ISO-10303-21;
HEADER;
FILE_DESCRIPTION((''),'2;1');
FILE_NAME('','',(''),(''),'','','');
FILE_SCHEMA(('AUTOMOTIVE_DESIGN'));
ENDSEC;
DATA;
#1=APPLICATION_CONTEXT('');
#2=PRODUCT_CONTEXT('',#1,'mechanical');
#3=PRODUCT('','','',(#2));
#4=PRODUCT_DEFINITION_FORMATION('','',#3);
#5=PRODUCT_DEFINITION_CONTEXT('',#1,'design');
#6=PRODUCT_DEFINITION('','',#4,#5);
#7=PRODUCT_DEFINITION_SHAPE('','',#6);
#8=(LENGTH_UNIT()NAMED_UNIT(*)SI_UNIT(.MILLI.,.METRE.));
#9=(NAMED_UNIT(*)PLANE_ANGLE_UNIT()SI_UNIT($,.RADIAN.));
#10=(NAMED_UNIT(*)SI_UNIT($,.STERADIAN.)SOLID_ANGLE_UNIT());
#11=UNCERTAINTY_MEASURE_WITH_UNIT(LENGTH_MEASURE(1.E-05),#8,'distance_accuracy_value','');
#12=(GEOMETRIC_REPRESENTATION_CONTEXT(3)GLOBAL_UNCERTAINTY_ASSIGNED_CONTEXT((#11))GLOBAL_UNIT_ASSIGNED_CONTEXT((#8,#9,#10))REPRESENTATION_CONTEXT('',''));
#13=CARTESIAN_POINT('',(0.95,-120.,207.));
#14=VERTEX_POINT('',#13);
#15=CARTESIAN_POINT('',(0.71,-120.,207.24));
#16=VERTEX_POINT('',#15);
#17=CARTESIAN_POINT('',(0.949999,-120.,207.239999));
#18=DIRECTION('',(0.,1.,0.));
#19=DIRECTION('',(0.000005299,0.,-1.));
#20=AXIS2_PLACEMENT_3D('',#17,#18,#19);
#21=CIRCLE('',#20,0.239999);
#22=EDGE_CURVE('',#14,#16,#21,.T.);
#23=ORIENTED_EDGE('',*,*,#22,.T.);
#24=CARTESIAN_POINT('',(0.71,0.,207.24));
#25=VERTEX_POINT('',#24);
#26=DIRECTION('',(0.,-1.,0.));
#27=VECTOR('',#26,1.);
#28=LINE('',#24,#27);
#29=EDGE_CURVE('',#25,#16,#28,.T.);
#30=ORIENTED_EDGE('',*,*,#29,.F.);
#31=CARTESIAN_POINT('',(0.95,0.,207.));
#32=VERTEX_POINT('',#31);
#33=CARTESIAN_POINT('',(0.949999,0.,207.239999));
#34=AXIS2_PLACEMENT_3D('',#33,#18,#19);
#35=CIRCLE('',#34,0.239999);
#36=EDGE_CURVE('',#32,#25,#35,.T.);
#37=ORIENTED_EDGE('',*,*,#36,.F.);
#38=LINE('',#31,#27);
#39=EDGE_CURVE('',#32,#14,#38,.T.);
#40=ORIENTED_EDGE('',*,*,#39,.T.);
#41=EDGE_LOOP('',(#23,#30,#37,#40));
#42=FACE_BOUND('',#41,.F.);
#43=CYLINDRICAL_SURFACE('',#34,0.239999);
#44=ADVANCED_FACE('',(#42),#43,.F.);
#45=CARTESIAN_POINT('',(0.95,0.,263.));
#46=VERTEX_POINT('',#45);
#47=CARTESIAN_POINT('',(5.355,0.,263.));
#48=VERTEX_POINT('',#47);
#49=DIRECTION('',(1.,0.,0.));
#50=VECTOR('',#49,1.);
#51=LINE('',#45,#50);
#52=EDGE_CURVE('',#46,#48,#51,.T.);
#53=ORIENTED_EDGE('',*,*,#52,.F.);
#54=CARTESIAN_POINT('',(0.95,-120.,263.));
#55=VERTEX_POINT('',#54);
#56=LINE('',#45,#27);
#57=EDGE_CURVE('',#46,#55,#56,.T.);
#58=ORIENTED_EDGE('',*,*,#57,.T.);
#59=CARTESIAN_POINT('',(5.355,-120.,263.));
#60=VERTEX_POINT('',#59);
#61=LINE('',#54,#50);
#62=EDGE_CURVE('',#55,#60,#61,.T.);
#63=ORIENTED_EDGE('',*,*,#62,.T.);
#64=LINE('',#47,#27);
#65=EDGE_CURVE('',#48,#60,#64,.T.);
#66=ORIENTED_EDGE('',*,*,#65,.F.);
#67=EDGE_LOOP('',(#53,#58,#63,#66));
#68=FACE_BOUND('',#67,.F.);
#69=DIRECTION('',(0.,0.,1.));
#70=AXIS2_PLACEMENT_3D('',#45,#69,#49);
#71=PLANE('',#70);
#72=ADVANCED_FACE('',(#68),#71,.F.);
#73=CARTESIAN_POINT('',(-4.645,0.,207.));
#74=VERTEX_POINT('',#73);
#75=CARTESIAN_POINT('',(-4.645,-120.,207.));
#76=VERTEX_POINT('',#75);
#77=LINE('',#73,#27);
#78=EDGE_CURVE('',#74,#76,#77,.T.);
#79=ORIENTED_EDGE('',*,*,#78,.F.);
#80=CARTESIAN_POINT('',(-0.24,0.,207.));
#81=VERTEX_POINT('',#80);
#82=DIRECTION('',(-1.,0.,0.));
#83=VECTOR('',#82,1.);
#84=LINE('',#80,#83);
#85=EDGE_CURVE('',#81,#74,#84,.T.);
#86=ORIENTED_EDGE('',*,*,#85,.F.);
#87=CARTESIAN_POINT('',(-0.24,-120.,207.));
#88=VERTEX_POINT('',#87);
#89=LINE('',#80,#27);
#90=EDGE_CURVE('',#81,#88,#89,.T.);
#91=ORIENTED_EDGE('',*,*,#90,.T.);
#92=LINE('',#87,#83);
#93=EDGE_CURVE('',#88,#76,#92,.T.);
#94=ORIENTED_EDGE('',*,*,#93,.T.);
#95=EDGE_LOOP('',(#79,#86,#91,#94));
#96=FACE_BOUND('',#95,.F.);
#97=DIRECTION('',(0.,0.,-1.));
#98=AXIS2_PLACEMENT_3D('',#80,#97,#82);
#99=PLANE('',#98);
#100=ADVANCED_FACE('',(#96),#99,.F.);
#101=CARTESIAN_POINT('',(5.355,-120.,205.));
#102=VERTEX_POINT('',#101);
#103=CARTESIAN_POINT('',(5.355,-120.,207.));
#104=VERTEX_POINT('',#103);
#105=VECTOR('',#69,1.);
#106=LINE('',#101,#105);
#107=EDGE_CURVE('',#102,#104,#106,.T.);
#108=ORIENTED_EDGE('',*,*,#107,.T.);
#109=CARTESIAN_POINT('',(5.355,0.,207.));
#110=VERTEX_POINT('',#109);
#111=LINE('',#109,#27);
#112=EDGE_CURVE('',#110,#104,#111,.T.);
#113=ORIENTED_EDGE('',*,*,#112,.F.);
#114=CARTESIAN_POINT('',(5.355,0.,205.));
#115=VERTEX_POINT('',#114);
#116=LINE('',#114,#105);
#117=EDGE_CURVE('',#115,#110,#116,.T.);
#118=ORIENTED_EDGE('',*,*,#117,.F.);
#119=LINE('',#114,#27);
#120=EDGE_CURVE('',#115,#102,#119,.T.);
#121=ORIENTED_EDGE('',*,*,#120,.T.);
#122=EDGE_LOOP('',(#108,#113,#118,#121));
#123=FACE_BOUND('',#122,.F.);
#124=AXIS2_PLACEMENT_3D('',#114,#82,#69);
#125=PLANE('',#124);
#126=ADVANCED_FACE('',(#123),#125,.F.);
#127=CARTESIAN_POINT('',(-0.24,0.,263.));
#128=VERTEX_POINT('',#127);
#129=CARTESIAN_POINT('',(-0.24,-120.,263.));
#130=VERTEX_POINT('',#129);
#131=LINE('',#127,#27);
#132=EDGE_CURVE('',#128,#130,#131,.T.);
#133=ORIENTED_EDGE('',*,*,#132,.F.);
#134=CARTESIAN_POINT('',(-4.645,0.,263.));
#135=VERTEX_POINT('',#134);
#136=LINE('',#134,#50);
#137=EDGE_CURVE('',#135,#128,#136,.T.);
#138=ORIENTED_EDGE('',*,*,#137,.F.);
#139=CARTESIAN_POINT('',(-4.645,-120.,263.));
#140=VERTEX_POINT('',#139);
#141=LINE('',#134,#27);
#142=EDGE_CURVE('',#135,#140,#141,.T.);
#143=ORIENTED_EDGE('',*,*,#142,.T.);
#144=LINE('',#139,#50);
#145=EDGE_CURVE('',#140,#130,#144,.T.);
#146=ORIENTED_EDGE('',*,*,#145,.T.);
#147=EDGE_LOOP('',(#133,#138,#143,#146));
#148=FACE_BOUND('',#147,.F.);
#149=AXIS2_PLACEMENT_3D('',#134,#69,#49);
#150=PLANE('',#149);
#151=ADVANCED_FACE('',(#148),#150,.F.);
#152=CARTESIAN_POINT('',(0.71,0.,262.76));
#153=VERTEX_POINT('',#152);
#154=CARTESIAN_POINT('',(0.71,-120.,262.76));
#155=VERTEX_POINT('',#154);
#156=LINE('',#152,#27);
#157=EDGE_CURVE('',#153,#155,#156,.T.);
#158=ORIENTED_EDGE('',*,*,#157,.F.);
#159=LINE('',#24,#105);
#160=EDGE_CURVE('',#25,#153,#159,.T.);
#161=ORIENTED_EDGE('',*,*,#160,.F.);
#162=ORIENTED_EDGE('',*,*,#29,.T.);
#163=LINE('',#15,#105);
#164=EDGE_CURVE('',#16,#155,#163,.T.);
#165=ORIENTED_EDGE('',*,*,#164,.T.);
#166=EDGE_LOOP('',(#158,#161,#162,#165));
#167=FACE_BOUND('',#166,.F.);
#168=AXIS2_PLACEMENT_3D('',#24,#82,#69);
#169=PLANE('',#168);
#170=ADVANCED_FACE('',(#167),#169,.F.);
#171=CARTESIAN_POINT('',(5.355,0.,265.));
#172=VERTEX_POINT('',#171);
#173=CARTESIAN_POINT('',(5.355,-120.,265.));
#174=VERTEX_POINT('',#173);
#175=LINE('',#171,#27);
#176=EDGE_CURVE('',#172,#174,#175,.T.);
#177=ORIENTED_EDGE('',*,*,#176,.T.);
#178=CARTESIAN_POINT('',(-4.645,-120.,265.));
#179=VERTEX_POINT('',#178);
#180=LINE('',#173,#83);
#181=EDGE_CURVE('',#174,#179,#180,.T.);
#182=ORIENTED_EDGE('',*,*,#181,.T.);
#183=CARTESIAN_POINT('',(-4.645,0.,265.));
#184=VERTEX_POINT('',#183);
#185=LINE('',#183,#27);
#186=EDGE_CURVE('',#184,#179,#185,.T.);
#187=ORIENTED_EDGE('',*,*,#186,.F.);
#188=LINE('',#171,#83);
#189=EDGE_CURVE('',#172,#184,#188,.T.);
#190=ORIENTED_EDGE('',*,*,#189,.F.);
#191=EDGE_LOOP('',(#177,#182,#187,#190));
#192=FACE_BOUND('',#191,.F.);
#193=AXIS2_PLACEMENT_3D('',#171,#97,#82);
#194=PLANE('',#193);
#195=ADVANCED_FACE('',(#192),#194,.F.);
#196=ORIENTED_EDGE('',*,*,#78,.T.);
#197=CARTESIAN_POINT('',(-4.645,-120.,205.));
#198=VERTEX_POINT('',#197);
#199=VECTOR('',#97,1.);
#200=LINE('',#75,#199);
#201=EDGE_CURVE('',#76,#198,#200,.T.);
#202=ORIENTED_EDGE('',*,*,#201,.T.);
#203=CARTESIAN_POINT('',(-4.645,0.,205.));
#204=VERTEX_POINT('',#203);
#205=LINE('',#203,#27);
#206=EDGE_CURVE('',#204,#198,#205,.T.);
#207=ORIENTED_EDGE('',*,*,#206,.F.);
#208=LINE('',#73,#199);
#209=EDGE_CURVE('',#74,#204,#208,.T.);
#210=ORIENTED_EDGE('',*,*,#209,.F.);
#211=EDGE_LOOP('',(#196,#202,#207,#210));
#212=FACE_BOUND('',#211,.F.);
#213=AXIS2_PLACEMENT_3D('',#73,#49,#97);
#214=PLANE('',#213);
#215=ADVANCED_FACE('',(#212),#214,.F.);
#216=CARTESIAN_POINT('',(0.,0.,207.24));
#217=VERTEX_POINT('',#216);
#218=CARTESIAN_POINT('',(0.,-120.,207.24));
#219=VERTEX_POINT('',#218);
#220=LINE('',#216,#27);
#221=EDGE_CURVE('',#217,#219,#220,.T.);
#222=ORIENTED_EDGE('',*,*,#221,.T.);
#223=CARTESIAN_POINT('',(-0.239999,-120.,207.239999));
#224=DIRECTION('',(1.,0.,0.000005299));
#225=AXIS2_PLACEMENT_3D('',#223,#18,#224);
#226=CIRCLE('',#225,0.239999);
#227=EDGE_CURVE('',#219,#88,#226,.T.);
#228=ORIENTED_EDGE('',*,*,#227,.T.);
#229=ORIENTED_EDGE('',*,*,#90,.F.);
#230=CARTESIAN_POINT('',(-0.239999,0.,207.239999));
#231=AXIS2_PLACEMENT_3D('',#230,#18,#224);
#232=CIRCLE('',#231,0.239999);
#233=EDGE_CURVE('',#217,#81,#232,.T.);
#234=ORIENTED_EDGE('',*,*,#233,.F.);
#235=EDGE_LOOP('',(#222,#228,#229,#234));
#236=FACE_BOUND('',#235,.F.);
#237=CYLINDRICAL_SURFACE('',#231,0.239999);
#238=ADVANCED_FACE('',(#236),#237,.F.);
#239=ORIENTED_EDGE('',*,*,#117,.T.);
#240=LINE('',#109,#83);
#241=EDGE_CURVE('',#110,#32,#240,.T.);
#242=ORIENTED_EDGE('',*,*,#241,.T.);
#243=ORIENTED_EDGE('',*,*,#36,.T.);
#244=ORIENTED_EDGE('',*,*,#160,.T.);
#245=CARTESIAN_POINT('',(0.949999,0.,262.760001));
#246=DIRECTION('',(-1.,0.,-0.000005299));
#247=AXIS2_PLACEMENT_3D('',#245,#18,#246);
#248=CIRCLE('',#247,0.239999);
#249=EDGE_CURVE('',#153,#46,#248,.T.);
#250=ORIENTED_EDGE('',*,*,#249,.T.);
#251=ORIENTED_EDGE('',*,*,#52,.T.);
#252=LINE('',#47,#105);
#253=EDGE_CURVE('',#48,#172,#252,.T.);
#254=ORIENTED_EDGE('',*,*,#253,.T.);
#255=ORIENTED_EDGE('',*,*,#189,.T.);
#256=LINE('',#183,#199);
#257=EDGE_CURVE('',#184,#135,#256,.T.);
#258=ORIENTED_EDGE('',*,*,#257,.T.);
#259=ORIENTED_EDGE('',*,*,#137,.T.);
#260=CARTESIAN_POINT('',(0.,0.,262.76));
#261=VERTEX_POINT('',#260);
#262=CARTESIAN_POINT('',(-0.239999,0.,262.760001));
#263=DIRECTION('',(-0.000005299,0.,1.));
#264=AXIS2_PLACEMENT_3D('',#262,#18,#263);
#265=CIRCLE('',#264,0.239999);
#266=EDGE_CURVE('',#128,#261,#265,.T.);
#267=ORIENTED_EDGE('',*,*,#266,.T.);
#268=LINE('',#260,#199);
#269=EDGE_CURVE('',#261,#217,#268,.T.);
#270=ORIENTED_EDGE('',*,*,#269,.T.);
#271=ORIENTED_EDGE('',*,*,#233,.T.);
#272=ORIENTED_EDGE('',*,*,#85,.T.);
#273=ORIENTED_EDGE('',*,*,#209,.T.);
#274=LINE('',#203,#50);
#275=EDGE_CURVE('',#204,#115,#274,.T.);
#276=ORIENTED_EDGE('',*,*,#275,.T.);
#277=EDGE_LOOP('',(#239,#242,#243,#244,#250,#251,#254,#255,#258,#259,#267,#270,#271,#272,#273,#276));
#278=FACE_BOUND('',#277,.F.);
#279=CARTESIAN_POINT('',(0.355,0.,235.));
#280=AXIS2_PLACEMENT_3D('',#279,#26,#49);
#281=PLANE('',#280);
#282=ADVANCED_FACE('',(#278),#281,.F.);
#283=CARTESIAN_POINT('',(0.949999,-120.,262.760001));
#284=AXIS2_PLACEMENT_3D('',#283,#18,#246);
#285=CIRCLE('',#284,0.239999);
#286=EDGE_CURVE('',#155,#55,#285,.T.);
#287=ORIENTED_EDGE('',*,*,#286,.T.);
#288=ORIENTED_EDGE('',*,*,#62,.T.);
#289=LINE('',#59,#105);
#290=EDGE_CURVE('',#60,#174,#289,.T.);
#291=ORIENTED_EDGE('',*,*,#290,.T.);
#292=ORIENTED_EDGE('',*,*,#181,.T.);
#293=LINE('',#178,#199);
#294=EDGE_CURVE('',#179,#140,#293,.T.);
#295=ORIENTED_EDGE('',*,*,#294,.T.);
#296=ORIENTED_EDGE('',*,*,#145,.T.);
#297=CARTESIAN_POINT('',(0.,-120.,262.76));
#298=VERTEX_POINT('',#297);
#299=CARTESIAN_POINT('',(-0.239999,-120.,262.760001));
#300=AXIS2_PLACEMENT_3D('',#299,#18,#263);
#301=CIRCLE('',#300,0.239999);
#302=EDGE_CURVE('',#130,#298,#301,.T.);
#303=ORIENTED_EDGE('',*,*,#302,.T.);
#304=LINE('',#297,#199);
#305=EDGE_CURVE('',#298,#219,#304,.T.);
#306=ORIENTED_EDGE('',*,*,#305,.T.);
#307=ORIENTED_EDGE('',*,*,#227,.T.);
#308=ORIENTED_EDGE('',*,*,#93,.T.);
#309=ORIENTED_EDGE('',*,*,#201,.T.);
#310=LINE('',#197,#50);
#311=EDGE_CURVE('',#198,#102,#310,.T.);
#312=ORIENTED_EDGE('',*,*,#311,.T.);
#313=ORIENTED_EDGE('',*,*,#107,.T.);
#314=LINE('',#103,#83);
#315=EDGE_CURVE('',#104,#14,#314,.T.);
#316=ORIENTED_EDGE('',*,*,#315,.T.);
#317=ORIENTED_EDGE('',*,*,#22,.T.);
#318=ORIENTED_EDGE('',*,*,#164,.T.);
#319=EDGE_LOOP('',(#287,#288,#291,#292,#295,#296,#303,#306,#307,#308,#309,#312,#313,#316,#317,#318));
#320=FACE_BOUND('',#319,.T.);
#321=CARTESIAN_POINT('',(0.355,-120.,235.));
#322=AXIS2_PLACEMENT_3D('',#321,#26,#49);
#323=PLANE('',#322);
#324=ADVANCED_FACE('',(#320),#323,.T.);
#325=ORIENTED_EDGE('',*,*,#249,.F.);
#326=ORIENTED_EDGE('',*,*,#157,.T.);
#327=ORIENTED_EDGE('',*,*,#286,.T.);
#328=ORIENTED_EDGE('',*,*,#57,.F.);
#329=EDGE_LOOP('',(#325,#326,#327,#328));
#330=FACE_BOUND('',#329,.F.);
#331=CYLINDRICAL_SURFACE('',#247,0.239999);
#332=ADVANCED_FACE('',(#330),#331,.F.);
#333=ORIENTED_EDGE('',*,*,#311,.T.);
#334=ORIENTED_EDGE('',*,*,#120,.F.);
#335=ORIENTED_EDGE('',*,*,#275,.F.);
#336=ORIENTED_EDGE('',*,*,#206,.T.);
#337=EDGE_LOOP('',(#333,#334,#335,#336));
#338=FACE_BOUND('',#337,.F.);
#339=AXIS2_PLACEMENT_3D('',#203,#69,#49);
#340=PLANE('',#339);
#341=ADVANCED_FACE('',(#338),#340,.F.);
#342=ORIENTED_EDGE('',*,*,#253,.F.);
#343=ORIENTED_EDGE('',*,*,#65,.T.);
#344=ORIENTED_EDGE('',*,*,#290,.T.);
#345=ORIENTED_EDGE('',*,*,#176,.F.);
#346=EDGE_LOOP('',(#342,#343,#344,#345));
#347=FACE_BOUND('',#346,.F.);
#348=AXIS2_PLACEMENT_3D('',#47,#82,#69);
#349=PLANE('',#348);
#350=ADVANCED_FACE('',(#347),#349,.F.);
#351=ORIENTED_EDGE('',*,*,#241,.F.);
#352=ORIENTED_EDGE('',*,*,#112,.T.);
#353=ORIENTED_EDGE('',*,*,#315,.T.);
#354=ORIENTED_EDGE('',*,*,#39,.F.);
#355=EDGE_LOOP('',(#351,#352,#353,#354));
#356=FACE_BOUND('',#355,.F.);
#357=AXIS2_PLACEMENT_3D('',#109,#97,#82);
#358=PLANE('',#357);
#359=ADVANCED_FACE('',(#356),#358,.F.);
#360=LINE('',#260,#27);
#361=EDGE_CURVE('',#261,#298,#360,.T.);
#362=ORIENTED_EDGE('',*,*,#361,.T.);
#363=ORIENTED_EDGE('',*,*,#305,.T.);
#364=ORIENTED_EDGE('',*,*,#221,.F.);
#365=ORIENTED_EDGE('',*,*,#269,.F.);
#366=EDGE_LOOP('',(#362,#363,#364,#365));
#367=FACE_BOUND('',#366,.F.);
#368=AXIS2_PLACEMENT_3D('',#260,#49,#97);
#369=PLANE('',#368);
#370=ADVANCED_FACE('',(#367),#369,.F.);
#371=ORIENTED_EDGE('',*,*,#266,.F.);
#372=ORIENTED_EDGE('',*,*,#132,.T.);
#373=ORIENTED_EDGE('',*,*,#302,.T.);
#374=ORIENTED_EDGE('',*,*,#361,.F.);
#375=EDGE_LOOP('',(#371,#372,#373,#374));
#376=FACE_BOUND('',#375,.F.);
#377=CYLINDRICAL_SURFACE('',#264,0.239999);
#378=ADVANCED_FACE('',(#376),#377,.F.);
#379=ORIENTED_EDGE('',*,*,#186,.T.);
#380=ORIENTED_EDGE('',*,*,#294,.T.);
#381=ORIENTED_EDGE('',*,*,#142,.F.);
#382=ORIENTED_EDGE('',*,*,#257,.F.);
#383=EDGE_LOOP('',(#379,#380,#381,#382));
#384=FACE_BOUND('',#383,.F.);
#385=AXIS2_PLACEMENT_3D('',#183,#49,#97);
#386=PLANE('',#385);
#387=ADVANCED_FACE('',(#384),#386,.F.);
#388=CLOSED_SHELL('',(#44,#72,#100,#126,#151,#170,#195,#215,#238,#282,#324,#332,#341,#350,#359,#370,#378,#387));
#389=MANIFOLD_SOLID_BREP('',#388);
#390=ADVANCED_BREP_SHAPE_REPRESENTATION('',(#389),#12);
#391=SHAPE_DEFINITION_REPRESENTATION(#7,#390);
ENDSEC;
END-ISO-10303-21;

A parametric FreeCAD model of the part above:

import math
import FreeCAD as App
import Part
import Sketcher
from FreeCAD import Vector
Q = App.Units.Quantity

doc = App.newDocument("Part")
body = doc.addObject("PartDesign::Body", "Body")

sketch1 = body.newObject("Sketcher::SketchObject", "Sketch")
sketch1.AttachmentSupport = (doc.getObject("XZ_Plane"), [""])
sketch1.MapMode = "FlatFace"
sketch1.addGeometry([
    Part.LineSegment(Vector(5.36, 265, 0), Vector(-4.64, 265, 0)),
    Part.LineSegment(Vector(-4.64, 265, 0), Vector(-4.64, 263, 0)),
    Part.LineSegment(Vector(-4.64, 263, 0), Vector(-0.24, 263, 0)),
    Part.ArcOfCircle(Part.Circle(Vector(-0.24, 262.76, 0), Vector(0, 0, 1), 0.24), math.radians(0), math.radians(90)),
    Part.LineSegment(Vector(0, 262.76, 0), Vector(0, 207.24, 0)),
    Part.ArcOfCircle(Part.Circle(Vector(-0.24, 207.24, 0), Vector(0, 0, 1), 0.24), math.radians(-90), math.radians(0)),
    Part.LineSegment(Vector(-0.24, 207, 0), Vector(-4.64, 207, 0)),
    Part.LineSegment(Vector(-4.64, 207, 0), Vector(-4.64, 205, 0)),
    Part.LineSegment(Vector(-4.64, 205, 0), Vector(5.36, 205, 0)),
    Part.LineSegment(Vector(5.36, 205, 0), Vector(5.36, 207, 0)),
    Part.LineSegment(Vector(5.36, 207, 0), Vector(0.95, 207, 0)),
    Part.ArcOfCircle(Part.Circle(Vector(0.95, 207.24, 0), Vector(0, 0, 1), 0.24), math.radians(180), math.radians(270)),
    Part.LineSegment(Vector(0.71, 207.24, 0), Vector(0.71, 262.76, 0)),
    Part.ArcOfCircle(Part.Circle(Vector(0.95, 262.76, 0), Vector(0, 0, 1), 0.24), math.radians(90), math.radians(180)),
    Part.LineSegment(Vector(0.95, 263, 0), Vector(5.36, 263, 0)),
    Part.LineSegment(Vector(5.36, 263, 0), Vector(5.36, 265, 0)),
], False)
sketch1.addConstraint([
    Sketcher.Constraint("Coincident", 0, 2, 1, 1),
    Sketcher.Constraint("Coincident", 1, 2, 2, 1),
    Sketcher.Constraint("Coincident", 2, 2, 3, 2),
    Sketcher.Constraint("Coincident", 3, 1, 4, 1),
    Sketcher.Constraint("Coincident", 4, 2, 5, 2),
    Sketcher.Constraint("Coincident", 5, 1, 6, 1),
    Sketcher.Constraint("Coincident", 6, 2, 7, 1),
    Sketcher.Constraint("Coincident", 7, 2, 8, 1),
    Sketcher.Constraint("Coincident", 8, 2, 9, 1),
    Sketcher.Constraint("Coincident", 9, 2, 10, 1),
    Sketcher.Constraint("Coincident", 10, 2, 11, 2),
    Sketcher.Constraint("Coincident", 11, 1, 12, 1),
    Sketcher.Constraint("Coincident", 12, 2, 13, 2),
    Sketcher.Constraint("Coincident", 13, 1, 14, 1),
    Sketcher.Constraint("Coincident", 14, 2, 15, 1),
    Sketcher.Constraint("Coincident", 15, 2, 0, 1),
    Sketcher.Constraint("Horizontal", 0),
    Sketcher.Constraint("Vertical", 1),
    Sketcher.Constraint("Horizontal", 2),
    Sketcher.Constraint("Vertical", 4),
    Sketcher.Constraint("Horizontal", 6),
    Sketcher.Constraint("Vertical", 7),
    Sketcher.Constraint("Horizontal", 8),
    Sketcher.Constraint("Vertical", 9),
    Sketcher.Constraint("Horizontal", 10),
    Sketcher.Constraint("Vertical", 12),
    Sketcher.Constraint("Horizontal", 14),
    Sketcher.Constraint("Vertical", 15),
    Sketcher.Constraint("Equal", 3, 5),
    Sketcher.Constraint("Equal", 5, 11),
    Sketcher.Constraint("Equal", 11, 13),
    Sketcher.Constraint("PointOnObject", 3, 1, -2),
    Sketcher.Constraint("Horizontal", 5, 3, 11, 3),
    Sketcher.Constraint("Horizontal", 3, 3, 13, 3),
    Sketcher.Constraint("Horizontal", 13, 3, 3, 1),
    Sketcher.Constraint("Horizontal", 11, 3, 4, 2),
    Sketcher.Constraint("Horizontal", 4, 2, 11, 1),
    Sketcher.Constraint("Horizontal", 3, 1, 12, 2),
    Sketcher.Constraint("Vertical", 5, 3, 2, 2),
    Sketcher.Constraint("Vertical", 2, 2, 5, 1),
    Sketcher.Constraint("Vertical", 1, 2, 6, 2),
    Sketcher.Constraint("Vertical", 13, 3, 10, 2),
    Sketcher.Constraint("Vertical", 10, 2, 13, 1),
    Sketcher.Constraint("Vertical", 9, 2, 14, 2),
    Sketcher.Constraint("Equal", 6, 10),
    Sketcher.Constraint("Equal", 1, 7),
    Sketcher.Constraint("DistanceX", 0, 2, 0, 1, Q("10 mm")),
    Sketcher.Constraint("DistanceY", 1, 2, 1, 1, Q("2 mm")),
    Sketcher.Constraint("Radius", 3, Q("0.239999 mm")),
    Sketcher.Constraint("DistanceY", -1, 1, 0, 2, Q("265 mm")),
    Sketcher.Constraint("DistanceY", -1, 1, 5, 1, Q("207 mm")),
    Sketcher.Constraint("DistanceX", 2, 1, 2, 2, Q("4.405 mm")),
])
pad1 = body.newObject("PartDesign::Pad", "Pad")
pad1.Profile = sketch1
pad1.Length = 120

doc.recompute()
